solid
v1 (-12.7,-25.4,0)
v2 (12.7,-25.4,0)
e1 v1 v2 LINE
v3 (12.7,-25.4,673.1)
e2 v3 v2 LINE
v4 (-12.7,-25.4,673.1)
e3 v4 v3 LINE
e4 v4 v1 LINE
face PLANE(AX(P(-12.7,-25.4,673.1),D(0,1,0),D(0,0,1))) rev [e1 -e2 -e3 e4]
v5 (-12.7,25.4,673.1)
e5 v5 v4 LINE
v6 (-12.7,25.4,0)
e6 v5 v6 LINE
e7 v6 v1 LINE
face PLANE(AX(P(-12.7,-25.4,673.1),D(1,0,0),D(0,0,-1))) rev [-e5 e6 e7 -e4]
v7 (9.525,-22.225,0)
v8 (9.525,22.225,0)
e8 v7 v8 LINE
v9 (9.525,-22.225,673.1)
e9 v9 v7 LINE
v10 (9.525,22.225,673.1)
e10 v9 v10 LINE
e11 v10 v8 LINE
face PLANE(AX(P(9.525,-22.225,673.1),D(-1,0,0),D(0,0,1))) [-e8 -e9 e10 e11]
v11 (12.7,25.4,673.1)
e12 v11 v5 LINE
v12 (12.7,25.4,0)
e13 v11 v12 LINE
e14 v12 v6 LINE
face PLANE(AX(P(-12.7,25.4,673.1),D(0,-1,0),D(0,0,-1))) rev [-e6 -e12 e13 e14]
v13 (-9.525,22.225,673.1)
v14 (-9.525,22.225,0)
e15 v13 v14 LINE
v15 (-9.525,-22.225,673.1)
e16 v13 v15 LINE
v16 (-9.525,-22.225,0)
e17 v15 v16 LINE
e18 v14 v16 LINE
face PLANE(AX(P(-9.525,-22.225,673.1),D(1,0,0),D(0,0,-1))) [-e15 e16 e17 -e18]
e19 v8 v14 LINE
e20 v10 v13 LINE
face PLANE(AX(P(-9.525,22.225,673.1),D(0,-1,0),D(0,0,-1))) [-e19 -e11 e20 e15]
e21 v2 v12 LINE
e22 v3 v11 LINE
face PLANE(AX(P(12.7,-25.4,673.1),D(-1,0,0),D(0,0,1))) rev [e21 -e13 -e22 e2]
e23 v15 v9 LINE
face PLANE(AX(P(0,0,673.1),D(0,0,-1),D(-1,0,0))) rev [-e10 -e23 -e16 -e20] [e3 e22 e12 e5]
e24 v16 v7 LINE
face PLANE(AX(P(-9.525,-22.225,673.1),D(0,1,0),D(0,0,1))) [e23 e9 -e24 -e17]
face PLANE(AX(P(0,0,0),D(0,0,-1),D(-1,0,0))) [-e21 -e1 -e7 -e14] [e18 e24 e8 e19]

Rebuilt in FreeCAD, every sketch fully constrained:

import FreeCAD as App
import Part
import Sketcher
Q = App.Units.Quantity


def add_polygon(sketch, points):
    """Adds a closed chain of lines whose ends are joined by coincident constraints."""
    first, n = sketch.GeometryCount, len(points)
    for a, b in zip(points, points[1:] + points[:1]):
        sketch.addGeometry(Part.LineSegment(App.Vector(*a, 0), App.Vector(*b, 0)), False)
    for i in range(n):
        sketch.addConstraint(Sketcher.Constraint("Coincident", first + i, 2, first + (i + 1) % n, 1))

doc = App.newDocument("Part")
body = doc.addObject("PartDesign::Body", "Body")

sketch1 = body.newObject("Sketcher::SketchObject", "Sketch")
sketch1.AttachmentSupport = (doc.getObject("XY_Plane"), [""])
sketch1.MapMode = "FlatFace"
add_polygon(sketch1, [(-13, 25), (-13, -25), (13, -25), (13, 25)])
add_polygon(sketch1, [(10, -22), (-10, -22), (-10, 22), (10, 22)])
sketch1.addConstraint([
    Sketcher.Constraint("Vertical", 0),
    Sketcher.Constraint("Horizontal", 1),
    Sketcher.Constraint("Vertical", 2),
    Sketcher.Constraint("Horizontal", 3),
    Sketcher.Constraint("Horizontal", 4),
    Sketcher.Constraint("Vertical", 5),
    Sketcher.Constraint("Horizontal", 6),
    Sketcher.Constraint("Vertical", 7),
    Sketcher.Constraint("Symmetric", 0, 2, 2, 2, -1, 1),
    Sketcher.Constraint("Symmetric", 4, 2, 6, 2, -1, 1),
    Sketcher.Constraint("DistanceX", 1, 1, 1, 2, Q("1 in")),
    Sketcher.Constraint("DistanceY", 0, 2, 0, 1, Q("2 in")),
    Sketcher.Constraint("DistanceX", 4, 2, 4, 1, Q("0.75 in")),
    Sketcher.Constraint("DistanceY", 5, 1, 5, 2, Q("1.75 in")),
])
pad1 = body.newObject("PartDesign::Pad", "Pad")
pad1.Profile = sketch1
pad1.Length = Q("26.5 in")

doc.recompute()
